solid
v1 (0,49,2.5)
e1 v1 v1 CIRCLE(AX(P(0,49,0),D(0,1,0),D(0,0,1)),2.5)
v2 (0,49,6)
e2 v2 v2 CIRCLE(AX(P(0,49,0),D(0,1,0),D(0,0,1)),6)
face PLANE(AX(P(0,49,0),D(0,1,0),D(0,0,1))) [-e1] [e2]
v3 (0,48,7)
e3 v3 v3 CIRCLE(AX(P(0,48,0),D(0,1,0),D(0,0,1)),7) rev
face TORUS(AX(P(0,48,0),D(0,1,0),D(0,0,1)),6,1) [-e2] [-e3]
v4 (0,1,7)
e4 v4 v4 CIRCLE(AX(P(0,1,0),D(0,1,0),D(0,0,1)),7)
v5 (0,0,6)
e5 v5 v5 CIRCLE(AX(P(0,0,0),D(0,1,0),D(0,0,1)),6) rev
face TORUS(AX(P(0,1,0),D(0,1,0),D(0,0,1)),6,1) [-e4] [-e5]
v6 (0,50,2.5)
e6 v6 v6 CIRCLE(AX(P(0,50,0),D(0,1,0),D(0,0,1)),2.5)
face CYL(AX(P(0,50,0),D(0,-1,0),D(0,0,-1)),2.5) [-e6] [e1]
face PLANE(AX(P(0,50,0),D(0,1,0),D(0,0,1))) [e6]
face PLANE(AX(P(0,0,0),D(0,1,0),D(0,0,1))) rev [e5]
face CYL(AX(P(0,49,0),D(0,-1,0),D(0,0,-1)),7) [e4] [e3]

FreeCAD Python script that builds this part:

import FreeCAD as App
import Part
import Sketcher

V = App.Vector
Q = App.Units.Quantity


def edges_at(feature, points):
    """Names of the edges that pass closest to the given points."""
    edges = feature.Shape.Edges
    near = lambda p: min(range(len(edges)), key=lambda i: edges[i].distToShape(Part.Vertex(*p))[0])
    return sorted({f"Edge{near(p) + 1}" for p in points})

doc = App.newDocument("Part")
params = doc.addObject("Spreadsheet::Sheet", "Params")
for row, (alias, value) in enumerate([
    ("sketch1_diameter", "14 mm"),
    ("pad1_length", "49 mm"),
    ("sketch2_diameter", "5 mm"),
    ("pad2_length", "1 mm"),
    ("fillet_radius", "1 mm"),
], start=1):
    params.set(f"A{row}", alias)
    params.set(f"B{row}", "=" + value)
    params.setAlias(f"B{row}", alias)

body = doc.addObject("PartDesign::Body", "Body")

sketch1 = body.newObject("Sketcher::SketchObject", "Sketch")
sketch1.AttachmentSupport = (doc.getObject("XZ_Plane"), [""])
sketch1.MapMode = "FlatFace"
sketch1.addGeometry(Part.Circle(V(0, 0, 0), V(0, 0, 1), 7), False)
sketch1.addConstraint(Sketcher.Constraint("Coincident", 0, 3, -1, 1))
sketch1.addConstraint(Sketcher.Constraint("Diameter", 0, Q("14 mm")))
sketch1.setExpression("Constraints[1]", "Params.sketch1_diameter")
pad1 = body.newObject("PartDesign::Pad", "Pad")
pad1.Profile = sketch1
pad1.setExpression("Length", "Params.pad1_length")
pad1.Reversed = True

sketch2 = body.newObject("Sketcher::SketchObject", "Sketch001")
sketch2.AttachmentSupport = (doc.getObject("XZ_Plane"), [""])
sketch2.MapMode = "FlatFace"
sketch2.AttachmentOffset = App.Placement(V(0, 0, -49), App.Rotation())
sketch2.addGeometry(Part.Circle(V(0, 0, 0), V(0, 0, 1), 2.5), False)
sketch2.addConstraint(Sketcher.Constraint("Coincident", 0, 3, -1, 1))
sketch2.addConstraint(Sketcher.Constraint("Diameter", 0, Q("5 mm")))
sketch2.setExpression("Constraints[1]", "Params.sketch2_diameter")
pad2 = body.newObject("PartDesign::Pad", "Pad001")
pad2.Profile = sketch2
pad2.setExpression("Length", "Params.pad2_length")
pad2.Reversed = True
doc.recompute()

fillet = body.newObject("PartDesign::Fillet", "Fillet")
fillet.Base = (pad2, edges_at(pad2, [(0, 0, -7), (0, 49, -7)]))
fillet.setExpression("Radius", "Params.fillet_radius")

doc.recompute()
